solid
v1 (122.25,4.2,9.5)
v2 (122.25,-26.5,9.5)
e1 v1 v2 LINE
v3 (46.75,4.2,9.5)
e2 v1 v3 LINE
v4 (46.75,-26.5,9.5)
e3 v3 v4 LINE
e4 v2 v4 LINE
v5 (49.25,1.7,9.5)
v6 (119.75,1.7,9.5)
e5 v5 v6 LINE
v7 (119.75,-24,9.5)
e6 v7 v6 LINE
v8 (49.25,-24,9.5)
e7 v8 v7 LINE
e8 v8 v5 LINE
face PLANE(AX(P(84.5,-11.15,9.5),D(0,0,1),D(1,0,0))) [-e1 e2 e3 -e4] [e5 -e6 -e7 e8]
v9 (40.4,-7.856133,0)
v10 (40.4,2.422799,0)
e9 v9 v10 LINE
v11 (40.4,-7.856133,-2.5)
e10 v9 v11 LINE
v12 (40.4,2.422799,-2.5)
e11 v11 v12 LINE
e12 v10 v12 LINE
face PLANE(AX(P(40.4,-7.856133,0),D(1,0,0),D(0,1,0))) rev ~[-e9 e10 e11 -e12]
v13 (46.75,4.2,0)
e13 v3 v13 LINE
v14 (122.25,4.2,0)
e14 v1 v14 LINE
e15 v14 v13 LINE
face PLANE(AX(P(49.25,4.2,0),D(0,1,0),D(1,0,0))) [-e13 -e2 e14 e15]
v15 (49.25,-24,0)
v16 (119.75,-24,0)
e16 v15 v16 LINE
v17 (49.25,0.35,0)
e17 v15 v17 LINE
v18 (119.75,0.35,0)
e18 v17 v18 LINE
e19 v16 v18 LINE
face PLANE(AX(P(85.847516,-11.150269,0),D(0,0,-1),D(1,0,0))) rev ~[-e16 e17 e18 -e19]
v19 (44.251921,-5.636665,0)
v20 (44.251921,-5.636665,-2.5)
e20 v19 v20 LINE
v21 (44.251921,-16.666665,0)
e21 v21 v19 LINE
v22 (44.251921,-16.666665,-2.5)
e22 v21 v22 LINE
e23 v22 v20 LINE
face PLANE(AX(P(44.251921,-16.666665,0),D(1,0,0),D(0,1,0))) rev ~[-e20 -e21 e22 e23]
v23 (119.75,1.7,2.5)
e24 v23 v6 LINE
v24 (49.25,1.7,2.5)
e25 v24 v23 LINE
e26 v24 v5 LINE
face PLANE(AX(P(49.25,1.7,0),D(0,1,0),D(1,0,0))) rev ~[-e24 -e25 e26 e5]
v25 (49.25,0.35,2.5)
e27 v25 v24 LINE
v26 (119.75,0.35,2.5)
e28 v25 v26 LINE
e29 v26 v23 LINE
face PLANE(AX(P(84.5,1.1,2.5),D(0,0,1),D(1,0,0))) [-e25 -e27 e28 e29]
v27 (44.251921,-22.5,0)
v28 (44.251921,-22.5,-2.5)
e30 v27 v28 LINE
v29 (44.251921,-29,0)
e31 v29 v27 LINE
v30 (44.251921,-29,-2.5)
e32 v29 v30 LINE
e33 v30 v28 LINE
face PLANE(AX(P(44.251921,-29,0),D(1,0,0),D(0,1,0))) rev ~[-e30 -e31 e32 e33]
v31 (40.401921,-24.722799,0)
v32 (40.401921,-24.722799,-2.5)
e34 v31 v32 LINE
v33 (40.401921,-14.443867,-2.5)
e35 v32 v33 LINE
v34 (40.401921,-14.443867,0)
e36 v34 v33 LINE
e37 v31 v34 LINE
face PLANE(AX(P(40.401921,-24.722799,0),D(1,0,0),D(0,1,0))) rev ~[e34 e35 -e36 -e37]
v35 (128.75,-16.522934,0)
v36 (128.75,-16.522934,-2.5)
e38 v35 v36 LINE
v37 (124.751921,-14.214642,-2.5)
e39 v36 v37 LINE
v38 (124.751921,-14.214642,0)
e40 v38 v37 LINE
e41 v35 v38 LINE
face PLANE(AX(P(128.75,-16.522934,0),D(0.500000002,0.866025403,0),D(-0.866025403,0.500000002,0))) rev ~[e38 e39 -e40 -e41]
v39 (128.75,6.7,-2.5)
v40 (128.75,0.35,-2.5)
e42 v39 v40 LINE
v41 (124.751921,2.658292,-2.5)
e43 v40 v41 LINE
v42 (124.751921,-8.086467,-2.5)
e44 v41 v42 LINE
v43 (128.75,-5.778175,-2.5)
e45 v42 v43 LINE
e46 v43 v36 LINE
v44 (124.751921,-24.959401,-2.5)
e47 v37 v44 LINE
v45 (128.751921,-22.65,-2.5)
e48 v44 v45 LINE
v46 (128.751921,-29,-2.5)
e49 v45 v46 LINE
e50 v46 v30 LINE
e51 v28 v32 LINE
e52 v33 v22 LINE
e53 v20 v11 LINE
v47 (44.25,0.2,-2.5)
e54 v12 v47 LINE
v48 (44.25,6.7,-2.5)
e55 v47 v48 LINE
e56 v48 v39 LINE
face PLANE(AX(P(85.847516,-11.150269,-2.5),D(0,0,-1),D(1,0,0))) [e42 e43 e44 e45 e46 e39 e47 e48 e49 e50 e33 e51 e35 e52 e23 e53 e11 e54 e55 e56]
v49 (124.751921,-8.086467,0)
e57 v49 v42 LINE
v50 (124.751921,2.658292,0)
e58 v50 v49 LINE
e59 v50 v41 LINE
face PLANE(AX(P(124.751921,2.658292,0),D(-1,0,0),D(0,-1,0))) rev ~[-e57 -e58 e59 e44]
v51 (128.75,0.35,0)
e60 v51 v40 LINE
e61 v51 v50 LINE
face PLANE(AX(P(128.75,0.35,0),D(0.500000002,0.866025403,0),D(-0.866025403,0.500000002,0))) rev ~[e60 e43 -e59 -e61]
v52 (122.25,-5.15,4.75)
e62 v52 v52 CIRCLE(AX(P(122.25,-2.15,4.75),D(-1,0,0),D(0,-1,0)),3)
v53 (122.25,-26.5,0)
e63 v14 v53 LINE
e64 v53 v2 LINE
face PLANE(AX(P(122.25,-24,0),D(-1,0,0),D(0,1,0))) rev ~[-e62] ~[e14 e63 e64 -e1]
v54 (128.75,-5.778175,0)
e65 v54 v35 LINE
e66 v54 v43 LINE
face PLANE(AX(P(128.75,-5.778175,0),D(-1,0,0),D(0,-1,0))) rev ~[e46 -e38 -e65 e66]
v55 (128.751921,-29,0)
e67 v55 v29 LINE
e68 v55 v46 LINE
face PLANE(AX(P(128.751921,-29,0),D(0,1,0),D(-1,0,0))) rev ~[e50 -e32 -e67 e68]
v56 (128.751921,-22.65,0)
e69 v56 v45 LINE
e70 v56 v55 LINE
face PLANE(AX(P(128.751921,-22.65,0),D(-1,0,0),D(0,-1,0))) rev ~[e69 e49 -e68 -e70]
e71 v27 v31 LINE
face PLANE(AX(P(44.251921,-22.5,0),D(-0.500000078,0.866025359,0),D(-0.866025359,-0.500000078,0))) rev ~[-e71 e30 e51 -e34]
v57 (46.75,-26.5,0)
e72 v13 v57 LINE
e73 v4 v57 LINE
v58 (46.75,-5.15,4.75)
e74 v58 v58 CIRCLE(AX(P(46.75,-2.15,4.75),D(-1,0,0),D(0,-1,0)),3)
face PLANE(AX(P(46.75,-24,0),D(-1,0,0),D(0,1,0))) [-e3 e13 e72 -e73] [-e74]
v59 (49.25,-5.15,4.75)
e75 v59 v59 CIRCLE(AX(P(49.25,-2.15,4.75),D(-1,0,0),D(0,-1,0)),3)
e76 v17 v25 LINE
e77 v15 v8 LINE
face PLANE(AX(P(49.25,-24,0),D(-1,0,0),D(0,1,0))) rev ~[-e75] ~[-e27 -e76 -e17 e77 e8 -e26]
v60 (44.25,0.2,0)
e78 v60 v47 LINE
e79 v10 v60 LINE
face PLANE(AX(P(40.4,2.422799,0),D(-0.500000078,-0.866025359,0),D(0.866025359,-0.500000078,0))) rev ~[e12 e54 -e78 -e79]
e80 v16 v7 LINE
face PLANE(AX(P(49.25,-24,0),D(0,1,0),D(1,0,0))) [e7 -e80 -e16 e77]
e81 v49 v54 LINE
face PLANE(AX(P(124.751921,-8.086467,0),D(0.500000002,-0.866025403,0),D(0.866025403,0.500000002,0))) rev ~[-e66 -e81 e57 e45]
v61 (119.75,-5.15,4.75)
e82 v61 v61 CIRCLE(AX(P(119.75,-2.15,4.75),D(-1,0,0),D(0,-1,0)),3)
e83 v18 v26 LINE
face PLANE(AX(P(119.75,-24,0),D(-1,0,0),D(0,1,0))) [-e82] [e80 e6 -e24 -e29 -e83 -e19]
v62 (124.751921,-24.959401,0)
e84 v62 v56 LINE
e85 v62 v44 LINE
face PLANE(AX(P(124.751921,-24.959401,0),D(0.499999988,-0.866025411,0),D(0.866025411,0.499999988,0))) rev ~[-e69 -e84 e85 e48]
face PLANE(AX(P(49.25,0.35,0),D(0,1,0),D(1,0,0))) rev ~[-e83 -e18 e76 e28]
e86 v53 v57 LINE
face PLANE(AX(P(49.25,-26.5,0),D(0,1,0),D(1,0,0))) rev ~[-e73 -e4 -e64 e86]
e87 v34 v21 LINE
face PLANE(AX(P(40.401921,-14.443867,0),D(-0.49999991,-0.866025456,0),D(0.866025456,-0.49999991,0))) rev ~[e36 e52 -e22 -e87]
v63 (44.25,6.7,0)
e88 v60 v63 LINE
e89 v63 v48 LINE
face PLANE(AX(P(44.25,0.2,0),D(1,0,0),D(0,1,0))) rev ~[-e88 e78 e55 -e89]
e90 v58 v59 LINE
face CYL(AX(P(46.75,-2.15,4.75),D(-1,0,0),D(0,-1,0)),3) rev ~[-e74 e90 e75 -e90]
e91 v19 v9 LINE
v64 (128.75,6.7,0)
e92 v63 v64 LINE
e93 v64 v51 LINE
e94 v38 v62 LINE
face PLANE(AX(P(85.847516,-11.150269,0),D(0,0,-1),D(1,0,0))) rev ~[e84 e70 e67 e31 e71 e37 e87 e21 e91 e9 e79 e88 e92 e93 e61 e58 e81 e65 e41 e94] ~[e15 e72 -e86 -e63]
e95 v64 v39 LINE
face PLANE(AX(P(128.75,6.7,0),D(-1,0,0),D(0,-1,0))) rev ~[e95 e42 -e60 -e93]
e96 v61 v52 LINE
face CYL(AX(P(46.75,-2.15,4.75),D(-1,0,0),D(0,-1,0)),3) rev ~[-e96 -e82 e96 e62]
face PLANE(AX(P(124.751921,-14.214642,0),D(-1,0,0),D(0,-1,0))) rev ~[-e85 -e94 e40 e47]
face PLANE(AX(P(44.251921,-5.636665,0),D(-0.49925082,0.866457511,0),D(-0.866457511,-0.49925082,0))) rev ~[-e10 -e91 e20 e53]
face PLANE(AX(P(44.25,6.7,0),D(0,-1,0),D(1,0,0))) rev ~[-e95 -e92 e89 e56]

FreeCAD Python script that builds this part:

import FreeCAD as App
import Part
import Sketcher

V = App.Vector
Q = App.Units.Quantity


def faces_at(feature, points):
    """Names of the faces that lie closest to the given points."""
    faces = feature.Shape.Faces
    near = lambda p: min(range(len(faces)), key=lambda i: faces[i].distToShape(Part.Vertex(*p))[0])
    return sorted({f"Face{near(p) + 1}" for p in points})

doc = App.newDocument("Part")
params = doc.addObject("Spreadsheet::Sheet", "Params")
for row, (alias, value) in enumerate([
    ("sketch1_width", "70.5 mm"),
    ("sketch1_height", "25.7 mm"),
    ("pad1_length", "9.5 mm"),
    ("thickness_wall", "2.5 mm"),
    ("sketch2_diameter", "6 mm"),
    ("sketch3_width", "70.5 mm"),
    ("sketch3_height", "1.5 mm"),
    ("pad2_length", "2.5 mm"),
    ("sketch4_width", "84.5 mm"),
    ("sketch4_height", "6.5 mm"),
    ("sketch4_height2", "6.35 mm"),
    ("sketch4_height3", "11.03 mm"),
    ("pad3_length", "2.5 mm"),
], start=1):
    params.set(f"A{row}", alias)
    params.set(f"B{row}", "=" + value)
    params.setAlias(f"B{row}", alias)

body = doc.addObject("PartDesign::Body", "Body")

# Sketch on XY plane
sketch1 = body.newObject("Sketcher::SketchObject", "Sketch")
sketch1.AttachmentSupport = (doc.getObject("XY_Plane"), [""])
sketch1.MapMode = "FlatFace"
sketch1.addGeometry([
    Part.LineSegment(V(-35, -35, 0), V(-35, -61, 0)),
    Part.LineSegment(V(-35, -61, 0), V(35, -61, 0)),
    Part.LineSegment(V(35, -61, 0), V(35, -35, 0)),
    Part.LineSegment(V(35, -35, 0), V(-35, -35, 0)),
], False)
sketch1.addConstraint([
    Sketcher.Constraint("Coincident", 0, 2, 1, 1),
    Sketcher.Constraint("Coincident", 1, 2, 2, 1),
    Sketcher.Constraint("Coincident", 2, 2, 3, 1),
    Sketcher.Constraint("Coincident", 3, 2, 0, 1),
    Sketcher.Constraint("Vertical", 0),
    Sketcher.Constraint("Horizontal", 1),
    Sketcher.Constraint("Vertical", 2),
    Sketcher.Constraint("Horizontal", 3),
    Sketcher.Constraint("DistanceX", 1, 1, 1, 2, Q("70.5 mm")),
    Sketcher.Constraint("DistanceY", 0, 2, 0, 1, Q("25.7 mm")),
    Sketcher.Constraint("DistanceX", 0, 2, -1, 1, Q("35.25 mm")),
    Sketcher.Constraint("DistanceY", 0, 2, -1, 1, Q("60.85 mm")),
])
sketch1.setExpression("Constraints[8]", "Params.sketch1_width")
sketch1.setExpression("Constraints[9]", "Params.sketch1_height")
pad1 = body.newObject("PartDesign::Pad", "Pad")
pad1.Profile = sketch1
pad1.setExpression("Length", "Params.pad1_length")
doc.recompute()

thickness = body.newObject("PartDesign::Thickness", "Thickness")
thickness.Base = (pad1, faces_at(pad1, [(0, -48, 9.5), (0, -48, 0)]))
thickness.setExpression("Value", "Params.thickness_wall")
thickness.Reversed = False
thickness.Join = "Intersection"

# Sketch on YZ plane
sketch2 = body.newObject("Sketcher::SketchObject", "Sketch001")
sketch2.AttachmentSupport = (doc.getObject("YZ_Plane"), [""])
sketch2.MapMode = "FlatFace"
sketch2.AttachmentOffset = App.Placement(V(0, 0, -37.75), App.Rotation())
sketch2.addGeometry(Part.Circle(V(-39, 4.8, 0), V(0, 0, 1), 3), False)
sketch2.addConstraint([
    Sketcher.Constraint("Diameter", 0, Q("6 mm")),
    Sketcher.Constraint("DistanceX", 0, 3, -1, 1, Q("39 mm")),
    Sketcher.Constraint("DistanceY", -1, 1, 0, 3, Q("4.75 mm")),
])
sketch2.setExpression("Constraints[0]", "Params.sketch2_diameter")
pocket1 = body.newObject("PartDesign::Pocket", "Pocket")
pocket1.Profile = sketch2
pocket1.Type = "ThroughAll"
pocket1.Reversed = True

# Sketch on XY plane
sketch3 = body.newObject("Sketcher::SketchObject", "Sketch002")
sketch3.AttachmentSupport = (doc.getObject("XY_Plane"), [""])
sketch3.MapMode = "FlatFace"
sketch3.addGeometry([
    Part.LineSegment(V(-35.2, -35, 0), V(-35.2, -36.5, 0)),
    Part.LineSegment(V(-35.2, -36.5, 0), V(35.2, -36.5, 0)),
    Part.LineSegment(V(35.2, -36.5, 0), V(35.2, -35, 0)),
    Part.LineSegment(V(35.2, -35, 0), V(-35.2, -35, 0)),
], False)
sketch3.addConstraint([
    Sketcher.Constraint("Coincident", 0, 2, 1, 1),
    Sketcher.Constraint("Coincident", 1, 2, 2, 1),
    Sketcher.Constraint("Coincident", 2, 2, 3, 1),
    Sketcher.Constraint("Coincident", 3, 2, 0, 1),
    Sketcher.Constraint("Vertical", 0),
    Sketcher.Constraint("Horizontal", 1),
    Sketcher.Constraint("Vertical", 2),
    Sketcher.Constraint("Horizontal", 3),
    Sketcher.Constraint("DistanceX", 1, 1, 1, 2, Q("70.5 mm")),
    Sketcher.Constraint("DistanceY", 0, 2, 0, 1, Q("1.5 mm")),
    Sketcher.Constraint("DistanceY", 2, 2, -1, 1, Q("35 mm")),
    Sketcher.Constraint("DistanceX", 0, 2, -1, 1, Q("35.25 mm")),
])
sketch3.setExpression("Constraints[8]", "Params.sketch3_width")
sketch3.setExpression("Constraints[9]", "Params.sketch3_height")
pad2 = body.newObject("PartDesign::Pad", "Pad001")
pad2.Profile = sketch3
pad2.setExpression("Length", "Params.pad2_length")
body2 = doc.addObject("PartDesign::Body", "Body001")
doc.recompute()

body.Placement = App.Placement(V(84.5, 36.85, 0), App.Rotation(V(0, 0, 1), 0))
boolean = body2.newObject("PartDesign::Boolean", "Boolean")
boolean.Type = "Fuse"
boolean.addObjects([body])
body3 = doc.addObject("PartDesign::Body", "Body002")

# Sketch on XY plane
sketch4 = body3.newObject("Sketcher::SketchObject", "Sketch003")
sketch4.AttachmentSupport = (doc.getObject("XY_Plane002"), [""])
sketch4.MapMode = "FlatFace"
sketch4.addGeometry([
    Part.LineSegment(V(-40.2, -30.1, 0), V(44.2, -30.1, 0)),  # 0
    Part.LineSegment(V(44.2, -30.1, 0), V(44.2, -36.5, 0)),  # 1
    Part.LineSegment(V(44.2, -36.5, 0), V(40.3, -34.2, 0)),  # 2
    Part.LineSegment(V(40.3, -34.2, 0), V(40.3, -44.9, 0)),  # 3
    Part.LineSegment(V(40.3, -44.9, 0), V(44.2, -42.6, 0)),  # 4
    Part.LineSegment(V(44.2, -42.6, 0), V(44.2, -53.4, 0)),  # 5
    Part.LineSegment(V(44.2, -53.4, 0), V(40.3, -51.1, 0)),  # 6
    Part.LineSegment(V(40.3, -51.1, 0), V(40.3, -61.8, 0)),  # 7
    Part.LineSegment(V(40.3, -61.8, 0), V(44.3, -59.5, 0)),  # 8
    Part.LineSegment(V(44.3, -59.5, 0), V(44.3, -65.8, 0)),  # 9
    Part.LineSegment(V(44.3, -65.8, 0), V(-40.2, -65.8, 0)),  # 10
    Part.LineSegment(V(-40.2, -65.8, 0), V(-40.2, -59.4, 0)),  # 11
    Part.LineSegment(V(-40.2, -59.4, 0), V(-44.1, -61.6, 0)),  # 12
    Part.LineSegment(V(-44.1, -61.6, 0), V(-44.1, -51.3, 0)),  # 13
    Part.LineSegment(V(-44.1, -51.3, 0), V(-40.2, -53.5, 0)),  # 14
    Part.LineSegment(V(-40.2, -53.5, 0), V(-40.2, -42.5, 0)),  # 15
    Part.LineSegment(V(-40.2, -42.5, 0), V(-44.1, -44.7, 0)),  # 16
    Part.LineSegment(V(-44.1, -44.7, 0), V(-44.1, -34.4, 0)),  # 17
    Part.LineSegment(V(-44.1, -34.4, 0), V(-40.2, -36.6, 0)),  # 18
    Part.LineSegment(V(-40.2, -36.6, 0), V(-40.2, -30.1, 0)),  # 19
], False)
sketch4.addConstraint([
    Sketcher.Constraint("Coincident", 0, 2, 1, 1),
    Sketcher.Constraint("Coincident", 1, 2, 2, 1),
    Sketcher.Constraint("Coincident", 2, 2, 3, 1),
    Sketcher.Constraint("Coincident", 3, 2, 4, 1),
    Sketcher.Constraint("Coincident", 4, 2, 5, 1),
    Sketcher.Constraint("Coincident", 5, 2, 6, 1),
    Sketcher.Constraint("Coincident", 6, 2, 7, 1),
    Sketcher.Constraint("Coincident", 7, 2, 8, 1),
    Sketcher.Constraint("Coincident", 8, 2, 9, 1),
    Sketcher.Constraint("Coincident", 9, 2, 10, 1),
    Sketcher.Constraint("Coincident", 10, 2, 11, 1),
    Sketcher.Constraint("Coincident", 11, 2, 12, 1),
    Sketcher.Constraint("Coincident", 12, 2, 13, 1),
    Sketcher.Constraint("Coincident", 13, 2, 14, 1),
    Sketcher.Constraint("Coincident", 14, 2, 15, 1),
    Sketcher.Constraint("Coincident", 15, 2, 16, 1),
    Sketcher.Constraint("Coincident", 16, 2, 17, 1),
    Sketcher.Constraint("Coincident", 17, 2, 18, 1),
    Sketcher.Constraint("Coincident", 18, 2, 19, 1),
    Sketcher.Constraint("Coincident", 19, 2, 0, 1),
    Sketcher.Constraint("Horizontal", 0),
    Sketcher.Constraint("Vertical", 1),
    Sketcher.Constraint("Vertical", 3),
    Sketcher.Constraint("Vertical", 5),
    Sketcher.Constraint("Vertical", 7),
    Sketcher.Constraint("Vertical", 9),
    Sketcher.Constraint("Horizontal", 10),
    Sketcher.Constraint("Vertical", 11),
    Sketcher.Constraint("Vertical", 13),
    Sketcher.Constraint("Vertical", 15),
    Sketcher.Constraint("Vertical", 17),
    Sketcher.Constraint("Vertical", 19),
    Sketcher.Constraint("Parallel", 2, 6),
    Sketcher.Constraint("Parallel", 4, 8),
    Sketcher.Constraint("Parallel", 8, 12),
    Sketcher.Constraint("Parallel", 6, 14),
    Sketcher.Constraint("Parallel", 14, 18),
    Sketcher.Constraint("Vertical", 1, 2, 4, 2),
    Sketcher.Constraint("Vertical", 3, 2, 6, 2),
    Sketcher.Constraint("Vertical", 11, 2, 14, 2),
    Sketcher.Constraint("Equal", 0, 10),
    Sketcher.Constraint("Equal", 3, 5),
    Sketcher.Constraint("Equal", 5, 7),
    Sketcher.Constraint("Equal", 1, 9),
    Sketcher.Constraint("Equal", 13, 17),
    Sketcher.Constraint("Equal", 11, 19),
    Sketcher.Constraint("Equal", 2, 4),
    Sketcher.Constraint("Equal", 14, 16),
    Sketcher.Constraint("Equal", 16, 18),
    Sketcher.Constraint("Angle", 2, Q("150 deg")),
    Sketcher.Constraint("DistanceX", 0, 1, 0, 2, Q("84.5 mm")),
    Sketcher.Constraint("DistanceY", 11, 1, 11, 2, Q("6.5 mm")),
    Sketcher.Constraint("DistanceX", 7, 2, 8, 2, Q("4 mm")),
    Sketcher.Constraint("DistanceY", 1, 2, 1, 1, Q("6.35 mm")),
    Sketcher.Constraint("DistanceY", 15, 1, 15, 2, Q("11.03 mm")),
    Sketcher.Constraint("DistanceY", 1, 2, -1, 1, Q("36.5 mm")),
    Sketcher.Constraint("DistanceY", 8, 2, -1, 1, Q("59.5 mm")),
    Sketcher.Constraint("DistanceX", 16, 2, -1, 1, Q("44.1 mm")),
    Sketcher.Constraint("DistanceX", -1, 1, 0, 2, Q("44.25 mm")),
    Sketcher.Constraint("DistanceY", 3, 2, 3, 1, Q("10.744759 mm")),
])
sketch4.setExpression("Constraints[50]", "Params.sketch4_width")
sketch4.setExpression("Constraints[51]", "Params.sketch4_height")
sketch4.setExpression("Constraints[53]", "Params.sketch4_height2")
sketch4.setExpression("Constraints[54]", "Params.sketch4_height3")
pad3 = body3.newObject("PartDesign::Pad", "Pad002")
pad3.Profile = sketch4
pad3.setExpression("Length", "Params.pad3_length")
pad3.Reversed = True
body4 = doc.addObject("PartDesign::Body", "Body003")
doc.recompute()

body3.Placement = App.Placement(V(84.5, 36.85, 0), App.Rotation(V(0, 0, 1), 0))
boolean2 = body4.newObject("PartDesign::Boolean", "Boolean001")
boolean2.Type = "Fuse"
boolean2.addObjects([body3])
doc.recompute()

boolean3 = body4.newObject("PartDesign::Boolean", "Boolean002")
boolean3.Type = "Fuse"
boolean3.addObjects([body2])

doc.recompute()
